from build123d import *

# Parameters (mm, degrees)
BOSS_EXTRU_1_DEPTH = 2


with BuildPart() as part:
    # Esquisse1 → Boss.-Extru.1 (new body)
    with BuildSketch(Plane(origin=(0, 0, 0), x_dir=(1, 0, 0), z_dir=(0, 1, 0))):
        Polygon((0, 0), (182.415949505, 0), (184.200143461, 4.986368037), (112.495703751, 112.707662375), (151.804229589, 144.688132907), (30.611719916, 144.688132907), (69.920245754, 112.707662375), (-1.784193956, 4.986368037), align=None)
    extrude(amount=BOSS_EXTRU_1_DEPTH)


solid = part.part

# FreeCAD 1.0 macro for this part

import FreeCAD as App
import Part
import Sketcher

V = App.Vector


def add_polygon(sketch, points):
    """Adds a closed chain of lines whose ends are joined by coincident constraints."""
    first, n = sketch.GeometryCount, len(points)
    for a, b in zip(points, points[1:] + points[:1]):
        sketch.addGeometry(Part.LineSegment(App.Vector(*a, 0), App.Vector(*b, 0)), False)
    for i in range(n):
        sketch.addConstraint(Sketcher.Constraint("Coincident", first + i, 2, first + (i + 1) % n, 1))

doc = App.newDocument("Part")
params = doc.addObject("Spreadsheet::Sheet", "Params")
for row, (alias, value) in enumerate([
    ("pad1_length", "2 mm"),
], start=1):
    params.set(f"A{row}", alias)
    params.set(f"B{row}", "=" + value)
    params.setAlias(f"B{row}", alias)

body = doc.addObject("PartDesign::Body", "Body")

# Sketch on XZ plane
sketch1 = doc.addObject("Sketcher::SketchObject", "Sketch")
body.addObject(sketch1)
sketch1.AttachmentSupport = (doc.XZ_Plane, [""])
sketch1.MapMode = "FlatFace"
add_polygon(sketch1, [(0, 0), (182.41595, 0), (184.200143, -4.986368), (112.495704, -112.707662), (151.80423, -144.688133), (30.61172, -144.688133), (69.920246, -112.707662), (-1.784194, -4.986368)])  # lines 0-7
sketch1.addConstraint(Sketcher.Constraint("Horizontal", 0))
sketch1.addConstraint(Sketcher.Constraint("Horizontal", 4))
sketch1.addConstraint(Sketcher.Constraint("Coincident", 7, 2, -1, 1))
sketch1.addConstraint(Sketcher.Constraint("Horizontal", 2, 2, 5, 2))
sketch1.addConstraint(Sketcher.Constraint("Horizontal", 1, 2, 6, 2))
sketch1.addConstraint(Sketcher.Constraint("Equal", 3, 5))
sketch1.addConstraint(Sketcher.Constraint("Equal", 2, 6))
sketch1.addConstraint(Sketcher.Constraint("Equal", 1, 7))
sketch1.addConstraint(Sketcher.Constraint("DistanceX", 0, 1, 0, 2, 182.41595))
sketch1.addConstraint(Sketcher.Constraint("DistanceX", 4, 2, 4, 1, 121.19251))
sketch1.addConstraint(Sketcher.Constraint("DistanceY", 1, 2, -1, 1, 4.986368))
sketch1.addConstraint(Sketcher.Constraint("DistanceX", 2, 2, 1, 2, 71.70444))
sketch1.addConstraint(Sketcher.Constraint("DistanceY", 3, 2, 2, 2, 31.980471))
sketch1.addConstraint(Sketcher.Constraint("Distance", 1, 5.295962))
sketch1.addConstraint(Sketcher.Constraint("Distance", 2, 129.404034))
pad1 = doc.addObject("PartDesign::Pad", "Pad")
body.addObject(pad1)
pad1.Profile = sketch1
pad1.setExpression("Length", "Params.pad1_length")
pad1.Reversed = True

doc.recompute()
